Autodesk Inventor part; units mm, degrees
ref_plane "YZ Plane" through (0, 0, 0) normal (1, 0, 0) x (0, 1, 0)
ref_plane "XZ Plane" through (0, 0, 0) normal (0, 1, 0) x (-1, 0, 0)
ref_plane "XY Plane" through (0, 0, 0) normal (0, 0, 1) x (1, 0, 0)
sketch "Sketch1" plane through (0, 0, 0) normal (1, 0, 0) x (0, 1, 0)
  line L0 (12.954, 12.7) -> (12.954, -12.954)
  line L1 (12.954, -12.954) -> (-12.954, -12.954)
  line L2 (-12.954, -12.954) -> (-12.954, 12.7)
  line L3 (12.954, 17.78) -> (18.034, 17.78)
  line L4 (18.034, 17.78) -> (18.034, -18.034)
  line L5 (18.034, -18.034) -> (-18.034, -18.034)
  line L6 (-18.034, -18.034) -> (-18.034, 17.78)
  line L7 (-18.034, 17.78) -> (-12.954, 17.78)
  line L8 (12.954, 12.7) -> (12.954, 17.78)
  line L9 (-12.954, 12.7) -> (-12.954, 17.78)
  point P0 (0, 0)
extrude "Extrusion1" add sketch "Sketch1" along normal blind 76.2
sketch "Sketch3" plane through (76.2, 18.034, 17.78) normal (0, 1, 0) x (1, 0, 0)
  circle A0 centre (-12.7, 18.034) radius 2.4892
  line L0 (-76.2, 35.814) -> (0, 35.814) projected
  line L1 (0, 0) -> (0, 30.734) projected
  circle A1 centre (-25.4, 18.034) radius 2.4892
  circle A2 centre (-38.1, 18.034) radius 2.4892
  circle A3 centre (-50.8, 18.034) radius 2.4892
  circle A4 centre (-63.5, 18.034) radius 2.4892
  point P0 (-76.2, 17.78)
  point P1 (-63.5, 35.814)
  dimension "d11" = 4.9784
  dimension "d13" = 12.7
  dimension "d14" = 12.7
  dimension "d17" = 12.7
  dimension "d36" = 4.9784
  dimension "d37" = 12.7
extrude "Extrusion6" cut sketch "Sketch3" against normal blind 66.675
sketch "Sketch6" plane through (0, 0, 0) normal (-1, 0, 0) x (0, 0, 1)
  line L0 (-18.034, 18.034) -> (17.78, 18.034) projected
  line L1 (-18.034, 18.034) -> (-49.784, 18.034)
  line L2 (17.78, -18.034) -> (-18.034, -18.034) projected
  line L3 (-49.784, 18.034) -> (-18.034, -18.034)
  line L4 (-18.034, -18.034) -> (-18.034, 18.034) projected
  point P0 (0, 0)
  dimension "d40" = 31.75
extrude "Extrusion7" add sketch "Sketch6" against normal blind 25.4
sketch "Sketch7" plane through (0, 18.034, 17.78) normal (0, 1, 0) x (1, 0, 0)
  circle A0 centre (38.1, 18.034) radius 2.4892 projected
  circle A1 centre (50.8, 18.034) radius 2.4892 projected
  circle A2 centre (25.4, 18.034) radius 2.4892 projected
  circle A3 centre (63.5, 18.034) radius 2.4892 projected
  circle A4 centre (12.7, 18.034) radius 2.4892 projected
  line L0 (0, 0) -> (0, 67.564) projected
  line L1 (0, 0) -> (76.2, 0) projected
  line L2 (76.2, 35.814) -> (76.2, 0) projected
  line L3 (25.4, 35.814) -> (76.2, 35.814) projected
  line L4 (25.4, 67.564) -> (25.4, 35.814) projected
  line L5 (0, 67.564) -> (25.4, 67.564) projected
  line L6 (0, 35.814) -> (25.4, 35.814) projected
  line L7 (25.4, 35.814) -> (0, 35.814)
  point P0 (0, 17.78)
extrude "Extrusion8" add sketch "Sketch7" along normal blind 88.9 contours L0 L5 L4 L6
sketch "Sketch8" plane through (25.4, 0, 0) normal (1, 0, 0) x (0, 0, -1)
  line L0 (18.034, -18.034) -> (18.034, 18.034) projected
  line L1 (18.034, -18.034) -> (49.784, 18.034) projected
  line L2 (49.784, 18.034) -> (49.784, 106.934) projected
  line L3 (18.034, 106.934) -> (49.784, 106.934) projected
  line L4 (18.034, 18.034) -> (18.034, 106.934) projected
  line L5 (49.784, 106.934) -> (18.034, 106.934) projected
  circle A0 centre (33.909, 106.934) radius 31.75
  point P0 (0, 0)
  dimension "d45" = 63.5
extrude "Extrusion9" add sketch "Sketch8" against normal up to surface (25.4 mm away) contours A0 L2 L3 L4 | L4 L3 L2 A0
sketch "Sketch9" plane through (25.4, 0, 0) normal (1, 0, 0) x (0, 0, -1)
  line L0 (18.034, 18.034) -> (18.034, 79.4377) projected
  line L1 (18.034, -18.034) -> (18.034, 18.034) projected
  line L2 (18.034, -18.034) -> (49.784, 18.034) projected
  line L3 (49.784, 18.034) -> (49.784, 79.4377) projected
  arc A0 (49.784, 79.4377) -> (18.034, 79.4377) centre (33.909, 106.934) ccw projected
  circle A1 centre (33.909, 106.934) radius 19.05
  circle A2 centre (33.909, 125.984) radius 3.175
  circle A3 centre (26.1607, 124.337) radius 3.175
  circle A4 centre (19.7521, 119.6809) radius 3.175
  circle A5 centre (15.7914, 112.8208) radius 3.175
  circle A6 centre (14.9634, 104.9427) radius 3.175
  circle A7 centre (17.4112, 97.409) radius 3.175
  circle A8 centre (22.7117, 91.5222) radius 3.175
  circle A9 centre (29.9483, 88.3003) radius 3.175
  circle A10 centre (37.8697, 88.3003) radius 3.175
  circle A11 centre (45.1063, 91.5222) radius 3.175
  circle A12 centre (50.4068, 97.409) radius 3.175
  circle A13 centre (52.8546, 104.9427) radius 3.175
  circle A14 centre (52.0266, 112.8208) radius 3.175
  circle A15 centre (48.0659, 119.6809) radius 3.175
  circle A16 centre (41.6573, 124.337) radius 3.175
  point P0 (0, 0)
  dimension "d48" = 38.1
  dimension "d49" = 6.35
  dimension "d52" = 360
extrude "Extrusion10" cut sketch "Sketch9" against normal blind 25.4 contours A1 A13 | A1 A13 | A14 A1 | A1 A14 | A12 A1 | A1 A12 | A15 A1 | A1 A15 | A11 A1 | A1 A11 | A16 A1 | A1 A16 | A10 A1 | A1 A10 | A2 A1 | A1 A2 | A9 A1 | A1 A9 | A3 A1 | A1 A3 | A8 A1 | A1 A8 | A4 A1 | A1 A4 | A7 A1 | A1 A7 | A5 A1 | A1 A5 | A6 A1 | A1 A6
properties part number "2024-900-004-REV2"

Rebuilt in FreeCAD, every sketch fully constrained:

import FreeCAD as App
import Part
import Sketcher
Q = App.Units.Quantity


def add_polygon(sketch, points):
    """Adds a closed chain of lines whose ends are joined by coincident constraints."""
    first, n = sketch.GeometryCount, len(points)
    for a, b in zip(points, points[1:] + points[:1]):
        sketch.addGeometry(Part.LineSegment(App.Vector(*a, 0), App.Vector(*b, 0)), False)
    for i in range(n):
        sketch.addConstraint(Sketcher.Constraint("Coincident", first + i, 2, first + (i + 1) % n, 1))

doc = App.newDocument("Part")
body = doc.addObject("PartDesign::Body", "Body")

# Sketch on YZ plane
sketch1 = body.newObject("Sketcher::SketchObject", "Sketch")
sketch1.AttachmentSupport = (doc.getObject("YZ_Plane"), [""])
sketch1.MapMode = "FlatFace"
add_polygon(sketch1, [(13, 18), (13, -13), (-13, -13), (-13, 18), (-18, 18), (-18, -18), (18, -18), (18, 18)])  # lines 0-7
sketch1.addConstraint([
    Sketcher.Constraint("Vertical", 0),
    Sketcher.Constraint("Horizontal", 1),
    Sketcher.Constraint("Vertical", 2),
    Sketcher.Constraint("Horizontal", 3),
    Sketcher.Constraint("Vertical", 4),
    Sketcher.Constraint("Horizontal", 5),
    Sketcher.Constraint("Vertical", 6),
    Sketcher.Constraint("Horizontal", 7),
    Sketcher.Constraint("Symmetric", 3, 2, 6, 2, -2),
    Sketcher.Constraint("Equal", 3, 7),
    Sketcher.Constraint("DistanceX", 3, 2, 3, 1, Q("0.2 in")),
    Sketcher.Constraint("DistanceX", 1, 2, 1, 1, Q("1.02 in")),
    Sketcher.Constraint("DistanceY", 0, 2, 0, 1, Q("1.21 in")),
    Sketcher.Constraint("DistanceY", 4, 2, 4, 1, Q("1.41 in")),
    Sketcher.Constraint("DistanceY", -1, 1, 2, 2, Q("0.7 in")),
])
pad1 = body.newObject("PartDesign::Pad", "Pad")
pad1.Profile = sketch1
pad1.Length = Q("3 in")

# Sketch on XZ plane
sketch2 = body.newObject("Sketcher::SketchObject", "Sketch001")
sketch2.AttachmentSupport = (doc.getObject("XZ_Plane"), [""])
sketch2.MapMode = "FlatFace"
sketch2.AttachmentOffset = App.Placement(App.Vector(0, 0, -0.71 * 25.4), App.Rotation())
sketch2.addGeometry([
    Part.Circle(App.Vector(63.5, -0.3, 0), App.Vector(0, 0, 1), 2.5),  # 0
    Part.Circle(App.Vector(50.8, -0.3, 0), App.Vector(0, 0, 1), 2.5),  # 1
    Part.Circle(App.Vector(38.1, -0.3, 0), App.Vector(0, 0, 1), 2.5),  # 2
    Part.Circle(App.Vector(25.4, -0.3, 0), App.Vector(0, 0, 1), 2.5),  # 3
    Part.Circle(App.Vector(12.7, -0.3, 0), App.Vector(0, 0, 1), 2.5),  # 4
], False)
sketch2.addConstraint([
    Sketcher.Constraint("Equal", 0, 1),
    Sketcher.Constraint("Equal", 1, 2),
    Sketcher.Constraint("Equal", 2, 3),
    Sketcher.Constraint("Equal", 3, 4),
    Sketcher.Constraint("Horizontal", 0, 3, 1, 3),
    Sketcher.Constraint("Horizontal", 1, 3, 2, 3),
    Sketcher.Constraint("Horizontal", 2, 3, 3, 3),
    Sketcher.Constraint("Horizontal", 3, 3, 4, 3),
    Sketcher.Constraint("Diameter", 0, Q("0.196 in")),
    Sketcher.Constraint("DistanceX", -1, 1, 3, 3, Q("1 in")),
    Sketcher.Constraint("DistanceX", 2, 3, 0, 3, Q("1 in")),
    Sketcher.Constraint("DistanceX", 3, 3, 1, 3, Q("1 in")),
    Sketcher.Constraint("DistanceX", 4, 3, 2, 3, Q("1 in")),
    Sketcher.Constraint("DistanceX", -1, 1, 4, 3, Q("0.5 in")),
    Sketcher.Constraint("DistanceY", 0, 3, -1, 1, Q("0.01 in")),
])
pocket1 = body.newObject("PartDesign::Pocket", "Pocket")
pocket1.Profile = sketch2
pocket1.Length = Q("2.625 in")
pocket1.Reversed = True

# Sketch on YZ plane
sketch3 = body.newObject("Sketcher::SketchObject", "Sketch002")
sketch3.AttachmentSupport = (doc.getObject("YZ_Plane"), [""])
sketch3.MapMode = "FlatFace"
add_polygon(sketch3, [(-18, -18), (18, -18), (18, -50)])  # lines 0-2
sketch3.addConstraint([
    Sketcher.Constraint("Horizontal", 0),
    Sketcher.Constraint("Vertical", 1),
    Sketcher.Constraint("DistanceY", 1, 2, 1, 1, Q("1.25 in")),
    Sketcher.Constraint("DistanceX", 0, 1, 0, 2, Q("1.42 in")),
    Sketcher.Constraint("DistanceX", -1, 1, 0, 2, Q("0.71 in")),
    Sketcher.Constraint("DistanceY", 0, 2, -1, 1, Q("0.71 in")),
])
pad2 = body.newObject("PartDesign::Pad", "Pad001")
pad2.Profile = sketch3
pad2.Length = Q("1 in")

# Sketch on XZ plane
sketch4 = body.newObject("Sketcher::SketchObject", "Sketch003")
sketch4.AttachmentSupport = (doc.getObject("XZ_Plane"), [""])
sketch4.MapMode = "FlatFace"
sketch4.AttachmentOffset = App.Placement(App.Vector(0, 0, -0.71 * 25.4), App.Rotation())
add_polygon(sketch4, [(0, -50), (0, -18), (25, -18), (25, -50)])  # lines 0-3
sketch4.addConstraint([
    Sketcher.Constraint("Vertical", 0),
    Sketcher.Constraint("Horizontal", 1),
    Sketcher.Constraint("Vertical", 2),
    Sketcher.Constraint("Horizontal", 3),
    Sketcher.Constraint("PointOnObject", 0, 2, -2),
    Sketcher.Constraint("DistanceX", 1, 1, 1, 2, Q("1 in")),
    Sketcher.Constraint("DistanceY", 0, 1, 0, 2, Q("1.25 in")),
    Sketcher.Constraint("DistanceY", 0, 2, -1, 1, Q("0.71 in")),
])
pad3 = body.newObject("PartDesign::Pad", "Pad002")
pad3.Profile = sketch4
pad3.Length = Q("3.5 in")
pad3.Reversed = True

# Sketch on YZ plane
sketch5 = body.newObject("Sketcher::SketchObject", "Sketch004")
sketch5.AttachmentSupport = (doc.getObject("YZ_Plane"), [""])
sketch5.MapMode = "FlatFace"
sketch5.AttachmentOffset = App.Placement(App.Vector(0, 0, 1 * 25.4), App.Rotation())
sketch5.addGeometry(Part.Circle(App.Vector(107, -34, 0), App.Vector(0, 0, 1), 32), False)
sketch5.addConstraint([
    Sketcher.Constraint("Diameter", 0, Q("2.5 in")),
    Sketcher.Constraint("DistanceX", -1, 1, 0, 3, Q("4.21 in")),
    Sketcher.Constraint("DistanceY", 0, 3, -1, 1, Q("1.335 in")),
])
pad4 = body.newObject("PartDesign::Pad", "Pad003")
pad4.Profile = sketch5
pad4.Length = Q("1 in")
pad4.Reversed = True

# Sketch on YZ plane
sketch6 = body.newObject("Sketcher::SketchObject", "Sketch005")
sketch6.AttachmentSupport = (doc.getObject("YZ_Plane"), [""])
sketch6.MapMode = "FlatFace"
sketch6.AttachmentOffset = App.Placement(App.Vector(0, 0, 1 * 25.4), App.Rotation())
sketch6.addGeometry([
    Part.Circle(App.Vector(104.9, -52.9, 0), App.Vector(0, 0, 1), 3.2),  # 0
    Part.Circle(App.Vector(112.8, -52, 0), App.Vector(0, 0, 1), 3.2),  # 1
    Part.Circle(App.Vector(97.4, -50.4, 0), App.Vector(0, 0, 1), 3.2),  # 2
    Part.Circle(App.Vector(119.7, -48.1, 0), App.Vector(0, 0, 1), 3.2),  # 3
    Part.Circle(App.Vector(91.5, -45.1, 0), App.Vector(0, 0, 1), 3.2),  # 4
    Part.Circle(App.Vector(124.3, -41.7, 0), App.Vector(0, 0, 1), 3.2),  # 5
    Part.Circle(App.Vector(88.3, -37.9, 0), App.Vector(0, 0, 1), 3.2),  # 6
    Part.Circle(App.Vector(126, -33.9, 0), App.Vector(0, 0, 1), 3.2),  # 7
    Part.Circle(App.Vector(88.3, -29.9, 0), App.Vector(0, 0, 1), 3.2),  # 8
    Part.Circle(App.Vector(124.3, -26.2, 0), App.Vector(0, 0, 1), 3.2),  # 9
    Part.Circle(App.Vector(91.5, -22.7, 0), App.Vector(0, 0, 1), 3.2),  # 10
    Part.Circle(App.Vector(119.7, -19.8, 0), App.Vector(0, 0, 1), 3.2),  # 11
    Part.Circle(App.Vector(97.4, -17.4, 0), App.Vector(0, 0, 1), 3.2),  # 12
    Part.Circle(App.Vector(112.8, -15.8, 0), App.Vector(0, 0, 1), 3.2),  # 13
    Part.Circle(App.Vector(104.9, -15, 0), App.Vector(0, 0, 1), 3.2),  # 14
], False)
sketch6.addConstraint([
    Sketcher.Constraint("Equal", 0, 1),
    Sketcher.Constraint("Equal", 1, 2),
    Sketcher.Constraint("Equal", 2, 3),
    Sketcher.Constraint("Equal", 3, 4),
    Sketcher.Constraint("Equal", 4, 5),
    Sketcher.Constraint("Equal", 5, 6),
    Sketcher.Constraint("Equal", 6, 7),
    Sketcher.Constraint("Equal", 7, 8),
    Sketcher.Constraint("Equal", 8, 9),
    Sketcher.Constraint("Equal", 9, 10),
    Sketcher.Constraint("Equal", 10, 11),
    Sketcher.Constraint("Equal", 11, 12),
    Sketcher.Constraint("Equal", 12, 13),
    Sketcher.Constraint("Equal", 13, 14),
    Sketcher.Constraint("Vertical", 6, 3, 8, 3),
    Sketcher.Constraint("Vertical", 5, 3, 9, 3),
    Sketcher.Constraint("Vertical", 4, 3, 10, 3),
    Sketcher.Constraint("Vertical", 3, 3, 11, 3),
    Sketcher.Constraint("Vertical", 2, 3, 12, 3),
    Sketcher.Constraint("Vertical", 1, 3, 13, 3),
    Sketcher.Constraint("Vertical", 0, 3, 14, 3),
    Sketcher.Constraint("Diameter", 0, Q("0.25 in")),
    Sketcher.Constraint("DistanceX", -1, 1, 7, 3, Q("4.96 in")),
    Sketcher.Constraint("DistanceX", -1, 1, 2, 3, Q("3.835 in")),
    Sketcher.Constraint("DistanceY", 7, 3, -1, 1, Q("1.335 in")),
    Sketcher.Constraint("DistanceX", -1, 1, 0, 3, Q("4.1316 in")),
    Sketcher.Constraint("DistanceY", 0, 3, -1, 1, Q("2.0809 in")),
    Sketcher.Constraint("DistanceY", 1, 3, -1, 1, Q("2.0483 in")),
    Sketcher.Constraint("DistanceX", -1, 1, 6, 3, Q("3.4764 in")),
    Sketcher.Constraint("DistanceY", 13, 3, -1, 1, Q("0.6217 in")),
    Sketcher.Constraint("DistanceY", 14, 3, -1, 1, Q("0.5891 in")),
    Sketcher.Constraint("DistanceX", 4, 3, 3, 3, Q("1.1086 in")),
    Sketcher.Constraint("DistanceX", 3, 3, 5, 3, Q("0.1833 in")),
    Sketcher.Constraint("DistanceY", 3, 3, 5, 3, Q("0.2523 in")),
    Sketcher.Constraint("DistanceX", 1, 3, 5, 3, Q("0.4534 in")),
    Sketcher.Constraint("DistanceY", 4, 3, 6, 3, Q("0.2849 in")),
    Sketcher.Constraint("DistanceY", 5, 3, 9, 3, Q("0.6101 in")),
    Sketcher.Constraint("DistanceY", 8, 3, 10, 3, Q("0.2849 in")),
    Sketcher.Constraint("DistanceY", 9, 3, 11, 3, Q("0.2523 in")),
    Sketcher.Constraint("DistanceX", -1, 1, 1, 3, Q("112.8208 mm")),
    Sketcher.Constraint("DistanceY", 2, 3, -1, 1, Q("50.4068 mm")),
    Sketcher.Constraint("DistanceY", 3, 3, -1, 1, Q("48.066 mm")),
    Sketcher.Constraint("DistanceY", 4, 3, -1, 1, Q("45.1063 mm")),
    Sketcher.Constraint("DistanceY", 8, 3, -1, 1, Q("29.9483 mm")),
    Sketcher.Constraint("DistanceY", 12, 3, -1, 1, Q("17.4112 mm")),
])
pocket2 = body.newObject("PartDesign::Pocket", "Pocket001")
pocket2.Profile = sketch6
pocket2.Length = Q("1 in")

doc.recompute()
